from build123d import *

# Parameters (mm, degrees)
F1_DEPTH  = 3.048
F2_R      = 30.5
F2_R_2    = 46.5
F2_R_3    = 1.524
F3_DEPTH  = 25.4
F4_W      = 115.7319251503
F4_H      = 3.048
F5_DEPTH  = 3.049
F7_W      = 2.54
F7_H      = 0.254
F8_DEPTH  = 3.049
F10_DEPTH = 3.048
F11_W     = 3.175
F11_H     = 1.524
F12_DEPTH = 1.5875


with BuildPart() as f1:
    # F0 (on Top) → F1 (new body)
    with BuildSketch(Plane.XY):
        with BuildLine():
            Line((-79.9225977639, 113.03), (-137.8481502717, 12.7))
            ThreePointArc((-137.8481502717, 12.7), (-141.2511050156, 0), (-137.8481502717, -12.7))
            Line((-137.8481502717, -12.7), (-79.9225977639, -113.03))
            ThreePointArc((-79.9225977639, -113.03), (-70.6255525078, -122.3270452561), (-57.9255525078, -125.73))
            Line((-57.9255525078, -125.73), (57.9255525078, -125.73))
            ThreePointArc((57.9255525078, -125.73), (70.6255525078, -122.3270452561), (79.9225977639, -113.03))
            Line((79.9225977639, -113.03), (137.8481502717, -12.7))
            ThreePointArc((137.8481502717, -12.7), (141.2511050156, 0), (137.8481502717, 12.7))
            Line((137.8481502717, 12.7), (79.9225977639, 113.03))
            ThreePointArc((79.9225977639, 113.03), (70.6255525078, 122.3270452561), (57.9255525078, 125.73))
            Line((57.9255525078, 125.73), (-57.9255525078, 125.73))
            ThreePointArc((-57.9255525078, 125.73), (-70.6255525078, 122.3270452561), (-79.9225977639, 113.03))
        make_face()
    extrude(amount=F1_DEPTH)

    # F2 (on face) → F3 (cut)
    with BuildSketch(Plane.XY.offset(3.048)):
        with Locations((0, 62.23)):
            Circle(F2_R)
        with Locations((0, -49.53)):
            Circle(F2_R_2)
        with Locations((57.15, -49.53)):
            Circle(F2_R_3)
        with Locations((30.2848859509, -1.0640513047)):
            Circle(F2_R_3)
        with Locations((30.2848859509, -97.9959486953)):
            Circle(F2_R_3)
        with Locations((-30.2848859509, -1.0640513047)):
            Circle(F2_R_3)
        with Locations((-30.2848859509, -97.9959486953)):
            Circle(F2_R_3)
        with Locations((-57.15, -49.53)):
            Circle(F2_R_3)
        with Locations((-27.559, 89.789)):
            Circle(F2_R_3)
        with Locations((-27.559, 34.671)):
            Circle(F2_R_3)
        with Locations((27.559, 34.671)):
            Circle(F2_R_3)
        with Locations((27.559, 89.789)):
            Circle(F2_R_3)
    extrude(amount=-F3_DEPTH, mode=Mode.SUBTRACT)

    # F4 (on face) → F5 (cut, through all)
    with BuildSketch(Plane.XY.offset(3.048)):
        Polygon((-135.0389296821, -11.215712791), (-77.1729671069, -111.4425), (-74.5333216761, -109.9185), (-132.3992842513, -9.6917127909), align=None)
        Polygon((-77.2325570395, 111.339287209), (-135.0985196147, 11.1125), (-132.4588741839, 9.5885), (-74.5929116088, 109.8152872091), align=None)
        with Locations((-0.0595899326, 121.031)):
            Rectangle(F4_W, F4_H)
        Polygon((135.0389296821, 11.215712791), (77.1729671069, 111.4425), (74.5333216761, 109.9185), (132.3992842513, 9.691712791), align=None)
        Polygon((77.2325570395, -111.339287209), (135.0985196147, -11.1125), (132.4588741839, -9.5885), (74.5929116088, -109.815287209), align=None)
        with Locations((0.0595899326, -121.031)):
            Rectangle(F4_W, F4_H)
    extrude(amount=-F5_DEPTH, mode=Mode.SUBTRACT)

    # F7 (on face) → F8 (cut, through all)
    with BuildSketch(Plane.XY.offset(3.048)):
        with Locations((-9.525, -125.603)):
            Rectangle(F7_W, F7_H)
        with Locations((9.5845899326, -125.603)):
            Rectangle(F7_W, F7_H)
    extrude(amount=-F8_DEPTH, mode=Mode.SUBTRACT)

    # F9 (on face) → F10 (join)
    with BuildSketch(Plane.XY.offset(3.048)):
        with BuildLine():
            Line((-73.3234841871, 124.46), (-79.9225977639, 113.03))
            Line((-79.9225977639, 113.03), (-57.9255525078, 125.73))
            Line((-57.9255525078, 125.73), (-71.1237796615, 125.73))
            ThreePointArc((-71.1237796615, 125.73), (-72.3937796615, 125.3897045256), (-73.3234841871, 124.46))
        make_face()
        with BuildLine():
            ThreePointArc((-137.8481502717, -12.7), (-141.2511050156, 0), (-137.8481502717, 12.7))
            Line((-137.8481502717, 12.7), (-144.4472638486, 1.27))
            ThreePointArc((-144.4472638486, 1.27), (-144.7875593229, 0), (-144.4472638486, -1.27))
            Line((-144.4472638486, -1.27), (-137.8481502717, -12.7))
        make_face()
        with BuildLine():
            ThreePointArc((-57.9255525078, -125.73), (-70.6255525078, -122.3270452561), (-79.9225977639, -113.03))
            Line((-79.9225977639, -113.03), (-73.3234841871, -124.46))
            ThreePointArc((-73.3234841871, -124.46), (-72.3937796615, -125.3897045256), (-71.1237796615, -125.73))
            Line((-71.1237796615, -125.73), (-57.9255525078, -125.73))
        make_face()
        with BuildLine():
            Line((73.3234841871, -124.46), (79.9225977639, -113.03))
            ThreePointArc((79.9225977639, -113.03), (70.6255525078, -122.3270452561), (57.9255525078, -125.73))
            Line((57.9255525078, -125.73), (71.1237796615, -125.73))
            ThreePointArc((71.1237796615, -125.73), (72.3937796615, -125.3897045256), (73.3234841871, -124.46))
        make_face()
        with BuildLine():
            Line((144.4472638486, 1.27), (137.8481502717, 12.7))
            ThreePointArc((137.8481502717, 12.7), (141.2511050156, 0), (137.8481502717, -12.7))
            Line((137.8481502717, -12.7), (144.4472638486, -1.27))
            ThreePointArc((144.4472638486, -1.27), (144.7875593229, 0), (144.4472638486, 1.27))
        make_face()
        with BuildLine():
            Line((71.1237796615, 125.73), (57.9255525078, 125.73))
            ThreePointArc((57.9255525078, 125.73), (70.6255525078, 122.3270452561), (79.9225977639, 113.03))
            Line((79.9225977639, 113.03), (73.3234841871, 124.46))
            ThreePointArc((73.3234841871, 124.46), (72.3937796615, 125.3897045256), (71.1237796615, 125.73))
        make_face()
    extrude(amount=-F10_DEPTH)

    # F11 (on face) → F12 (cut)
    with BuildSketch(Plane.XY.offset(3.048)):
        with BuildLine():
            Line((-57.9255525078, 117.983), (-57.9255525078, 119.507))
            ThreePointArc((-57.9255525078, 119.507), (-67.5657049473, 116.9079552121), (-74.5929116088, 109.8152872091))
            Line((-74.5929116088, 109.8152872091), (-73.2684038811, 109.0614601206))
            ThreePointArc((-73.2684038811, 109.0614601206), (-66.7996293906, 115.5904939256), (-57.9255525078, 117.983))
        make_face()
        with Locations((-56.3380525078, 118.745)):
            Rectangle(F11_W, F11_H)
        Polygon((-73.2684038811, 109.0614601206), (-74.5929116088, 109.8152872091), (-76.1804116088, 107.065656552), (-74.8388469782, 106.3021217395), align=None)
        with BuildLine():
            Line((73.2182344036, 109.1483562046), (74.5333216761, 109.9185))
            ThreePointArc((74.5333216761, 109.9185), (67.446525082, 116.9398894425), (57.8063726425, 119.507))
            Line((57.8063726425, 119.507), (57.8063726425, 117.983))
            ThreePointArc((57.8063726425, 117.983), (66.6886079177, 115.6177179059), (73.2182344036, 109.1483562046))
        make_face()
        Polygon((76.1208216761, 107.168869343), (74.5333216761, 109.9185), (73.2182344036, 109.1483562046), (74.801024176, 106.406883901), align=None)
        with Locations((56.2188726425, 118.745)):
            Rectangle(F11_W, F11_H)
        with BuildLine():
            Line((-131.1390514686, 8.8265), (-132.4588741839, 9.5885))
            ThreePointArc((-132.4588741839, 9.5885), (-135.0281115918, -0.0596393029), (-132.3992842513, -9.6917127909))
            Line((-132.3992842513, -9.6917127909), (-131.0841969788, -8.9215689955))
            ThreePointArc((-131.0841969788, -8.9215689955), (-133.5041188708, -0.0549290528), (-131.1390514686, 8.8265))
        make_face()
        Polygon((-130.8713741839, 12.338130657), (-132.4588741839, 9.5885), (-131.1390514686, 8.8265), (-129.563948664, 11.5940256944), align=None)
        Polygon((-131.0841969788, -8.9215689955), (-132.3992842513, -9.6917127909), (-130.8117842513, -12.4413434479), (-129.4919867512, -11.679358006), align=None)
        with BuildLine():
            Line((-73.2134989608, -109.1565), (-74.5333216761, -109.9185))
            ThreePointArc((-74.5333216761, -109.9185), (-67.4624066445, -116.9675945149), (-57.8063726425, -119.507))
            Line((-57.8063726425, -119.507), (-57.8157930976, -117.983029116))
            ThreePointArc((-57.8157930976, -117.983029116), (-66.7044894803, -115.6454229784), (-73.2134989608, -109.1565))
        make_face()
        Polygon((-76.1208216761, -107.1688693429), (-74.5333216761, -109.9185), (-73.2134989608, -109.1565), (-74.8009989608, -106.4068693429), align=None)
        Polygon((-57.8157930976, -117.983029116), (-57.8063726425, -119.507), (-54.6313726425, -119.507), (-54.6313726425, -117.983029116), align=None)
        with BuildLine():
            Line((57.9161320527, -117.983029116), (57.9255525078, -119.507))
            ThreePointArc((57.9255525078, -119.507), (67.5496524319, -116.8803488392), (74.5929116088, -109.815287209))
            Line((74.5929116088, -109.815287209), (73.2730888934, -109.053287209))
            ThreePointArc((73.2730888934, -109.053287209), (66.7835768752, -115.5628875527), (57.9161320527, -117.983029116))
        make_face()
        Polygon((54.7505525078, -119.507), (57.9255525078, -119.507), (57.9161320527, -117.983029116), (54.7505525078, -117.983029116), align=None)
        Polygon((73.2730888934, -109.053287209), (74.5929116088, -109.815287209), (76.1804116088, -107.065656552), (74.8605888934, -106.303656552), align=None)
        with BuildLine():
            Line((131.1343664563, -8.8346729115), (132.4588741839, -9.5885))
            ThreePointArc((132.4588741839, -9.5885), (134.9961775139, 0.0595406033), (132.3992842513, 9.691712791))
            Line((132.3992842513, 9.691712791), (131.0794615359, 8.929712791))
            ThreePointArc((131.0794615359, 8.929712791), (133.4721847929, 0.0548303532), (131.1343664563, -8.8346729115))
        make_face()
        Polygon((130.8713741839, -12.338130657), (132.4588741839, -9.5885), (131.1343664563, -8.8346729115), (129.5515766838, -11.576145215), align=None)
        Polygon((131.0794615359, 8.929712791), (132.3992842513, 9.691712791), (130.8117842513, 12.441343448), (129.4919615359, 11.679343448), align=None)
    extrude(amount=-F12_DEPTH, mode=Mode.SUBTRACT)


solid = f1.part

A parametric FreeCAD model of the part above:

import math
import FreeCAD as App
import Part
import Sketcher
from FreeCAD import Vector
Q = App.Units.Quantity


def add_polygon(sketch, points):
    """Adds a closed chain of lines whose ends are joined by coincident constraints."""
    first, n = sketch.GeometryCount, len(points)
    for a, b in zip(points, points[1:] + points[:1]):
        sketch.addGeometry(Part.LineSegment(App.Vector(*a, 0), App.Vector(*b, 0)), False)
    for i in range(n):
        sketch.addConstraint(Sketcher.Constraint("Coincident", first + i, 2, first + (i + 1) % n, 1))

doc = App.newDocument("Part")
params = doc.addObject("Spreadsheet::Sheet", "Params")
for row, (alias, value) in enumerate([
    ("sketch1_radius", "1 in"),
    ("pad1_length", "0.12 in"),
    ("sketch2_diameter", "0.12 in"),
    ("pocket1_length", "1 in"),
    ("sketch3_height", "0.12 in"),
    ("sketch3_length", "0.12 in"),
    ("sketch4_width", "0.1 in"),
    ("sketch4_height", "0.01 in"),
    ("sketch5_radius", "1 in"),
    ("sketch5_radius2", "0.1 in"),
    ("pad2_length", "0.12 in"),
    ("sketch6_height", "0.06 in"),
    ("sketch6_width", "0.125 in"),
    ("sketch6_length", "0.125 in"),
    ("pocket4_length", "0.0625 in"),
], start=1):
    params.set(f"A{row}", alias)
    params.set(f"B{row}", "=" + value)
    params.setAlias(f"B{row}", alias)

body = doc.addObject("PartDesign::Body", "Body")

sketch1 = body.newObject("Sketcher::SketchObject", "Sketch")
sketch1.AttachmentSupport = (doc.getObject("XY_Plane"), [""])
sketch1.MapMode = "FlatFace"
sketch1.addGeometry(Part.LineSegment(Vector(-80, 113, 0), Vector(-138, 13, 0)), False)
sketch1.addGeometry(Part.ArcOfCircle(Part.Circle(Vector(-116, 0, 0), Vector(0, 0, 1), 25), math.radians(150), math.radians(210)), False)
sketch1.addGeometry(Part.LineSegment(Vector(-138, -13, 0), Vector(-80, -113, 0)), False)
sketch1.addGeometry(Part.ArcOfCircle(Part.Circle(Vector(-58, -100, 0), Vector(0, 0, 1), 25), math.radians(-150), math.radians(-90)), False)
sketch1.addGeometry(Part.LineSegment(Vector(-58, -126, 0), Vector(58, -126, 0)), False)
sketch1.addGeometry(Part.ArcOfCircle(Part.Circle(Vector(58, -100, 0), Vector(0, 0, 1), 25), math.radians(-90), math.radians(-30)), False)
sketch1.addGeometry(Part.LineSegment(Vector(80, -113, 0), Vector(138, -13, 0)), False)
sketch1.addGeometry(Part.ArcOfCircle(Part.Circle(Vector(116, 0, 0), Vector(0, 0, 1), 25), math.radians(-30), math.radians(30)), False)
sketch1.addGeometry(Part.LineSegment(Vector(138, 13, 0), Vector(80, 113, 0)), False)
sketch1.addGeometry(Part.ArcOfCircle(Part.Circle(Vector(58, 100, 0), Vector(0, 0, 1), 25), math.radians(30), math.radians(90)), False)
sketch1.addGeometry(Part.LineSegment(Vector(58, 126, 0), Vector(-58, 126, 0)), False)
sketch1.addGeometry(Part.ArcOfCircle(Part.Circle(Vector(-58, 100, 0), Vector(0, 0, 1), 25), math.radians(90), math.radians(150)), False)
sketch1.addConstraint(Sketcher.Constraint("Tangent", 0, 2, 1, 1))
sketch1.addConstraint(Sketcher.Constraint("Tangent", 1, 2, 2, 1))
sketch1.addConstraint(Sketcher.Constraint("Tangent", 2, 2, 3, 1))
sketch1.addConstraint(Sketcher.Constraint("Tangent", 3, 2, 4, 1))
sketch1.addConstraint(Sketcher.Constraint("Tangent", 4, 2, 5, 1))
sketch1.addConstraint(Sketcher.Constraint("Tangent", 5, 2, 6, 1))
sketch1.addConstraint(Sketcher.Constraint("Tangent", 6, 2, 7, 1))
sketch1.addConstraint(Sketcher.Constraint("Tangent", 7, 2, 8, 1))
sketch1.addConstraint(Sketcher.Constraint("Tangent", 8, 2, 9, 1))
sketch1.addConstraint(Sketcher.Constraint("Tangent", 9, 2, 10, 1))
sketch1.addConstraint(Sketcher.Constraint("Tangent", 10, 2, 11, 1))
sketch1.addConstraint(Sketcher.Constraint("Tangent", 11, 2, 0, 1))
sketch1.addConstraint(Sketcher.Constraint("Horizontal", 4))
sketch1.addConstraint(Sketcher.Constraint("Horizontal", 10))
sketch1.addConstraint(Sketcher.Constraint("Equal", 1, 3))
sketch1.addConstraint(Sketcher.Constraint("Equal", 3, 5))
sketch1.addConstraint(Sketcher.Constraint("Equal", 5, 7))
sketch1.addConstraint(Sketcher.Constraint("Equal", 7, 9))
sketch1.addConstraint(Sketcher.Constraint("Equal", 9, 11))
sketch1.addConstraint(Sketcher.Constraint("Symmetric", 1, 3, 7, 3, -1, 1))
sketch1.addConstraint(Sketcher.Constraint("Symmetric", 3, 3, 9, 3, -1, 1))
sketch1.addConstraint(Sketcher.Constraint("Symmetric", 2, 2, 5, 2, -2))
sketch1.addConstraint(Sketcher.Constraint("Parallel", 0, 6))
sketch1.addConstraint(Sketcher.Constraint("Radius", 1, Q("1 in")))
sketch1.addConstraint(Sketcher.Constraint("Angle", 0, Q("-120 deg")))
sketch1.addConstraint(Sketcher.Constraint("DistanceY", 5, 3, 9, 3, Q("7.9 in")))
sketch1.addConstraint(Sketcher.Constraint("DistanceX", 4, 1, 4, 2, Q("115.851105 mm")))
sketch1.setExpression("Constraints[23]", "Params.sketch1_radius")
pad1 = body.newObject("PartDesign::Pad", "Pad")
pad1.Profile = sketch1
pad1.setExpression("Length", "Params.pad1_length")

sketch2 = body.newObject("Sketcher::SketchObject", "Sketch001")
sketch2.AttachmentSupport = (doc.getObject("XY_Plane"), [""])
sketch2.MapMode = "FlatFace"
sketch2.AttachmentOffset = App.Placement(Vector(0, 0, 0.12 * 25.4), App.Rotation())
sketch2.addGeometry(Part.Circle(Vector(0, 62.2, 0), Vector(0, 0, 1), 30.5), False)
sketch2.addGeometry(Part.Circle(Vector(0, -49.5, 0), Vector(0, 0, 1), 46.5), False)
sketch2.addGeometry(Part.Circle(Vector(57.1, -49.5, 0), Vector(0, 0, 1), 1.5), False)
sketch2.addGeometry(Part.Circle(Vector(30.3, -1.1, 0), Vector(0, 0, 1), 1.5), False)
sketch2.addGeometry(Part.Circle(Vector(30.3, -98, 0), Vector(0, 0, 1), 1.5), False)
sketch2.addGeometry(Part.Circle(Vector(-30.3, -1.1, 0), Vector(0, 0, 1), 1.5), False)
sketch2.addGeometry(Part.Circle(Vector(-30.3, -98, 0), Vector(0, 0, 1), 1.5), False)
sketch2.addGeometry(Part.Circle(Vector(-57.1, -49.5, 0), Vector(0, 0, 1), 1.5), False)
sketch2.addGeometry(Part.Circle(Vector(-27.6, 89.8, 0), Vector(0, 0, 1), 1.5), False)
sketch2.addGeometry(Part.Circle(Vector(-27.6, 34.7, 0), Vector(0, 0, 1), 1.5), False)
sketch2.addGeometry(Part.Circle(Vector(27.6, 34.7, 0), Vector(0, 0, 1), 1.5), False)
sketch2.addGeometry(Part.Circle(Vector(27.6, 89.8, 0), Vector(0, 0, 1), 1.5), False)
sketch2.addConstraint(Sketcher.Constraint("Equal", 2, 3))
sketch2.addConstraint(Sketcher.Constraint("Equal", 3, 4))
sketch2.addConstraint(Sketcher.Constraint("Equal", 4, 5))
sketch2.addConstraint(Sketcher.Constraint("Equal", 5, 6))
sketch2.addConstraint(Sketcher.Constraint("Equal", 6, 7))
sketch2.addConstraint(Sketcher.Constraint("Equal", 7, 8))
sketch2.addConstraint(Sketcher.Constraint("Equal", 8, 9))
sketch2.addConstraint(Sketcher.Constraint("Equal", 9, 10))
sketch2.addConstraint(Sketcher.Constraint("Equal", 10, 11))
sketch2.addConstraint(Sketcher.Constraint("Symmetric", 3, 3, 5, 3, -2))
sketch2.addConstraint(Sketcher.Constraint("Symmetric", 4, 3, 6, 3, -2))
sketch2.addConstraint(Sketcher.Constraint("Symmetric", 2, 3, 7, 3, -2))
sketch2.addConstraint(Sketcher.Constraint("Symmetric", 9, 3, 10, 3, -2))
sketch2.addConstraint(Sketcher.Constraint("Symmetric", 8, 3, 11, 3, -2))
sketch2.addConstraint(Sketcher.Constraint("PointOnObject", 0, 3, -2))
sketch2.addConstraint(Sketcher.Constraint("PointOnObject", 1, 3, -2))
sketch2.addConstraint(Sketcher.Constraint("Horizontal", 1, 3, 2, 3))
sketch2.addConstraint(Sketcher.Constraint("Vertical", 3, 3, 4, 3))
sketch2.addConstraint(Sketcher.Constraint("Vertical", 8, 3, 9, 3))
sketch2.addConstraint(Sketcher.Constraint("Diameter", 2, Q("0.12 in")))
sketch2.addConstraint(Sketcher.Constraint("DistanceY", 1, 3, 0, 3, Q("4.4 in")))
sketch2.addConstraint(Sketcher.Constraint("Diameter", 0, Q("61 mm")))
sketch2.addConstraint(Sketcher.Constraint("Diameter", 1, Q("93 mm")))
sketch2.addConstraint(Sketcher.Constraint("DistanceY", -1, 1, 0, 3, Q("2.45 in")))
sketch2.addConstraint(Sketcher.Constraint("DistanceX", -1, 1, 2, 3, Q("2.25 in")))
sketch2.addConstraint(Sketcher.Constraint("DistanceY", 9, 3, 8, 3, Q("2.17 in")))
sketch2.addConstraint(Sketcher.Constraint("DistanceX", 9, 3, 10, 3, Q("2.17 in")))
sketch2.addConstraint(Sketcher.Constraint("DistanceY", -1, 1, 8, 3, Q("3.535 in")))
sketch2.addConstraint(Sketcher.Constraint("DistanceY", 3, 3, -1, 1, Q("1.064051 mm")))
sketch2.addConstraint(Sketcher.Constraint("DistanceY", 4, 3, -1, 1, Q("97.995949 mm")))
sketch2.addConstraint(Sketcher.Constraint("DistanceX", 5, 3, 3, 3, Q("60.569772 mm")))
sketch2.setExpression("Constraints[19]", "Params.sketch2_diameter")
pocket1 = body.newObject("PartDesign::Pocket", "Pocket")
pocket1.Profile = sketch2
pocket1.setExpression("Length", "Params.pocket1_length")

sketch3 = body.newObject("Sketcher::SketchObject", "Sketch002")
sketch3.AttachmentSupport = (doc.getObject("XY_Plane"), [""])
sketch3.MapMode = "FlatFace"
sketch3.AttachmentOffset = App.Placement(Vector(0, 0, 0.12 * 25.4), App.Rotation())
add_polygon(sketch3, [(-135, -11.2), (-77.2, -111.4), (-74.5, -109.9), (-132.4, -9.7)])
add_polygon(sketch3, [(-77.2, 111.3), (-135.1, 11.1), (-132.5, 9.6), (-74.6, 109.8)])
add_polygon(sketch3, [(-57.9, 122.6), (-57.9, 119.5), (57.8, 119.5), (57.8, 122.6)])
add_polygon(sketch3, [(135, 11.2), (77.2, 111.4), (74.5, 109.9), (132.4, 9.7)])
add_polygon(sketch3, [(77.2, -111.3), (135.1, -11.1), (132.5, -9.6), (74.6, -109.8)])
add_polygon(sketch3, [(-57.8, -119.5), (-57.8, -122.6), (57.9, -122.6), (57.9, -119.5)])
sketch3.addConstraint(Sketcher.Constraint("Vertical", 8))
sketch3.addConstraint(Sketcher.Constraint("Horizontal", 9))
sketch3.addConstraint(Sketcher.Constraint("Vertical", 10))
sketch3.addConstraint(Sketcher.Constraint("Horizontal", 11))
sketch3.addConstraint(Sketcher.Constraint("Vertical", 20))
sketch3.addConstraint(Sketcher.Constraint("Horizontal", 21))
sketch3.addConstraint(Sketcher.Constraint("Vertical", 22))
sketch3.addConstraint(Sketcher.Constraint("Horizontal", 23))
sketch3.addConstraint(Sketcher.Constraint("Symmetric", 0, 2, 12, 2, -1, 1))
sketch3.addConstraint(Sketcher.Constraint("Symmetric", 1, 2, 13, 2, -1, 1))
sketch3.addConstraint(Sketcher.Constraint("Symmetric", 2, 2, 14, 2, -1, 1))
sketch3.addConstraint(Sketcher.Constraint("Symmetric", 3, 2, 15, 2, -1, 1))
sketch3.addConstraint(Sketcher.Constraint("Symmetric", 4, 2, 16, 2, -1, 1))
sketch3.addConstraint(Sketcher.Constraint("Symmetric", 5, 2, 17, 2, -1, 1))
sketch3.addConstraint(Sketcher.Constraint("Symmetric", 6, 2, 18, 2, -1, 1))
sketch3.addConstraint(Sketcher.Constraint("Symmetric", 7, 2, 19, 2, -1, 1))
sketch3.addConstraint(Sketcher.Constraint("Symmetric", 10, 2, 20, 2, -1, 1))
sketch3.addConstraint(Sketcher.Constraint("Symmetric", 8, 2, 22, 2, -1, 1))
sketch3.addConstraint(Sketcher.Constraint("Perpendicular", 0, 1))
sketch3.addConstraint(Sketcher.Constraint("Perpendicular", 1, 2))
sketch3.addConstraint(Sketcher.Constraint("Perpendicular", 2, 3))
sketch3.addConstraint(Sketcher.Constraint("Perpendicular", 4, 5))
sketch3.addConstraint(Sketcher.Constraint("Perpendicular", 5, 6))
sketch3.addConstraint(Sketcher.Constraint("Perpendicular", 6, 7))
sketch3.addConstraint(Sketcher.Constraint("Equal", 2, 4))
sketch3.addConstraint(Sketcher.Constraint("Equal", 3, 5))
sketch3.addConstraint(Sketcher.Constraint("Angle", 0, Q("-60 deg")))
sketch3.addConstraint(Sketcher.Constraint("Angle", 4, Q("-120 deg")))
sketch3.addConstraint(Sketcher.Constraint("DistanceY", 8, 2, 8, 1, Q("0.12 in")))
sketch3.addConstraint(Sketcher.Constraint("Distance", 1, Q("0.12 in")))
sketch3.addConstraint(Sketcher.Constraint("DistanceY", -1, 1, 4, 2, Q("0.4375 in")))
sketch3.addConstraint(Sketcher.Constraint("DistanceY", -1, 1, 8, 2, Q("4.705 in")))
sketch3.addConstraint(Sketcher.Constraint("DistanceY", 1, 2, 4, 2, Q("4.765 in")))
sketch3.addConstraint(Sketcher.Constraint("DistanceX", 9, 1, 9, 2, Q("115.731925 mm")))
sketch3.addConstraint(Sketcher.Constraint("DistanceX", 1, 2, -1, 1, Q("74.533322 mm")))
sketch3.addConstraint(Sketcher.Constraint("DistanceX", 3, 2, -1, 1, Q("135.03893 mm")))
sketch3.addConstraint(Sketcher.Constraint("DistanceX", 4, 2, -1, 1, Q("135.09852 mm")))
sketch3.addConstraint(Sketcher.Constraint("DistanceX", 6, 2, 8, 2, Q("16.667359 mm")))
sketch3.setExpression("Constraints[52]", "Params.sketch3_height")
sketch3.setExpression("Constraints[53]", "Params.sketch3_length")
pocket2 = body.newObject("PartDesign::Pocket", "Pocket001")
pocket2.Profile = sketch3
pocket2.Type = "ThroughAll"

sketch4 = body.newObject("Sketcher::SketchObject", "Sketch003")
sketch4.AttachmentSupport = (doc.getObject("XY_Plane"), [""])
sketch4.MapMode = "FlatFace"
sketch4.AttachmentOffset = App.Placement(Vector(0, 0, 0.12 * 25.4), App.Rotation())
add_polygon(sketch4, [(-10.79, -125.48), (-10.79, -125.73), (-8.26, -125.73), (-8.26, -125.48)])
add_polygon(sketch4, [(8.31, -125.48), (8.31, -125.73), (10.85, -125.73), (10.85, -125.48)])
sketch4.addConstraint(Sketcher.Constraint("Vertical", 0))
sketch4.addConstraint(Sketcher.Constraint("Horizontal", 1))
sketch4.addConstraint(Sketcher.Constraint("Vertical", 2))
sketch4.addConstraint(Sketcher.Constraint("Horizontal", 3))
sketch4.addConstraint(Sketcher.Constraint("Vertical", 4))
sketch4.addConstraint(Sketcher.Constraint("Horizontal", 5))
sketch4.addConstraint(Sketcher.Constraint("Vertical", 6))
sketch4.addConstraint(Sketcher.Constraint("Horizontal", 7))
sketch4.addConstraint(Sketcher.Constraint("Horizontal", 1, 2, 4, 2))
sketch4.addConstraint(Sketcher.Constraint("Horizontal", 3, 2, 6, 2))
sketch4.addConstraint(Sketcher.Constraint("Equal", 3, 5))
sketch4.addConstraint(Sketcher.Constraint("DistanceX", 1, 1, 1, 2, Q("0.1 in")))
sketch4.addConstraint(Sketcher.Constraint("DistanceY", 0, 2, 0, 1, Q("0.01 in")))
sketch4.addConstraint(Sketcher.Constraint("DistanceY", 0, 2, -1, 1, Q("4.95 in")))
sketch4.addConstraint(Sketcher.Constraint("DistanceX", 0, 2, -1, 1, Q("0.425 in")))
sketch4.addConstraint(Sketcher.Constraint("DistanceX", -1, 1, 4, 2, Q("8.31459 mm")))
sketch4.setExpression("Constraints[19]", "Params.sketch4_width")
sketch4.setExpression("Constraints[20]", "Params.sketch4_height")
pocket3 = body.newObject("PartDesign::Pocket", "Pocket002")
pocket3.Profile = sketch4
pocket3.Type = "ThroughAll"

sketch5 = body.newObject("Sketcher::SketchObject", "Sketch004")
sketch5.AttachmentSupport = (doc.getObject("XY_Plane"), [""])
sketch5.MapMode = "FlatFace"
sketch5.AttachmentOffset = App.Placement(Vector(0, 0, 0.12 * 25.4), App.Rotation())
sketch5.addGeometry(Part.LineSegment(Vector(-73.3, 124.5, 0), Vector(-79.9, 113, 0)), False)
sketch5.addGeometry(Part.LineSegment(Vector(-79.9, 113, 0), Vector(-57.9, 125.7, 0)), False)
sketch5.addGeometry(Part.LineSegment(Vector(-57.9, 125.7, 0), Vector(-71.1, 125.7, 0)), False)
sketch5.addGeometry(Part.ArcOfCircle(Part.Circle(Vector(-71.1, 123.2, 0), Vector(0, 0, 1), 2.5), math.radians(90), math.radians(150)), False)
sketch5.addGeometry(Part.ArcOfCircle(Part.Circle(Vector(-115.9, 0, 0), Vector(0, 0, 1), 25.4), math.radians(150), math.radians(210)), False)
sketch5.addGeometry(Part.LineSegment(Vector(-137.8, 12.7, 0), Vector(-144.4, 1.3, 0)), False)
sketch5.addGeometry(Part.ArcOfCircle(Part.Circle(Vector(-142.2, 0, 0), Vector(0, 0, 1), 2.5), math.radians(150), math.radians(210)), False)
sketch5.addGeometry(Part.LineSegment(Vector(-144.4, -1.3, 0), Vector(-137.8, -12.7, 0)), False)
sketch5.addGeometry(Part.ArcOfCircle(Part.Circle(Vector(-57.9, -100.3, 0), Vector(0, 0, 1), 25.4), math.radians(-150), math.radians(-90)), False)
sketch5.addGeometry(Part.LineSegment(Vector(-79.9, -113, 0), Vector(-73.3, -124.5, 0)), False)
sketch5.addGeometry(Part.ArcOfCircle(Part.Circle(Vector(-71.1, -123.2, 0), Vector(0, 0, 1), 2.5), math.radians(-150), math.radians(-90)), False)
sketch5.addGeometry(Part.LineSegment(Vector(-71.1, -125.7, 0), Vector(-57.9, -125.7, 0)), False)
sketch5.addGeometry(Part.LineSegment(Vector(73.3, -124.5, 0), Vector(79.9, -113, 0)), False)
sketch5.addGeometry(Part.ArcOfCircle(Part.Circle(Vector(57.9, -100.3, 0), Vector(0, 0, 1), 25.4), math.radians(-90), math.radians(-30)), False)
sketch5.addGeometry(Part.LineSegment(Vector(57.9, -125.7, 0), Vector(71.1, -125.7, 0)), False)
sketch5.addGeometry(Part.ArcOfCircle(Part.Circle(Vector(71.1, -123.2, 0), Vector(0, 0, 1), 2.5), math.radians(-90), math.radians(-30)), False)
sketch5.addGeometry(Part.LineSegment(Vector(144.4, 1.3, 0), Vector(137.8, 12.7, 0)), False)
sketch5.addGeometry(Part.ArcOfCircle(Part.Circle(Vector(115.9, 0, 0), Vector(0, 0, 1), 25.4), math.radians(-30), math.radians(30)), False)
sketch5.addGeometry(Part.LineSegment(Vector(137.8, -12.7, 0), Vector(144.4, -1.3, 0)), False)
sketch5.addGeometry(Part.ArcOfCircle(Part.Circle(Vector(142.2, 0, 0), Vector(0, 0, 1), 2.5), math.radians(-30), math.radians(30)), False)
sketch5.addGeometry(Part.LineSegment(Vector(71.1, 125.7, 0), Vector(57.9, 125.7, 0)), False)
sketch5.addGeometry(Part.ArcOfCircle(Part.Circle(Vector(57.9, 100.3, 0), Vector(0, 0, 1), 25.4), math.radians(30), math.radians(90)), False)
sketch5.addGeometry(Part.LineSegment(Vector(79.9, 113, 0), Vector(73.3, 124.5, 0)), False)
sketch5.addGeometry(Part.ArcOfCircle(Part.Circle(Vector(71.1, 123.2, 0), Vector(0, 0, 1), 2.5), math.radians(30), math.radians(90)), False)
sketch5.addConstraint(Sketcher.Constraint("Coincident", 0, 2, 1, 1))
sketch5.addConstraint(Sketcher.Constraint("Coincident", 1, 2, 2, 1))
sketch5.addConstraint(Sketcher.Constraint("Tangent", 2, 2, 3, 1))
sketch5.addConstraint(Sketcher.Constraint("Tangent", 3, 2, 0, 1))
sketch5.addConstraint(Sketcher.Constraint("Tangent", 4, 1, 5, 1))
sketch5.addConstraint(Sketcher.Constraint("Tangent", 5, 2, 6, 1))
sketch5.addConstraint(Sketcher.Constraint("Tangent", 6, 2, 7, 1))
sketch5.addConstraint(Sketcher.Constraint("Tangent", 7, 2, 4, 2))
sketch5.addConstraint(Sketcher.Constraint("Tangent", 8, 1, 9, 1))
sketch5.addConstraint(Sketcher.Constraint("Tangent", 9, 2, 10, 1))
sketch5.addConstraint(Sketcher.Constraint("Tangent", 10, 2, 11, 1))
sketch5.addConstraint(Sketcher.Constraint("Tangent", 11, 2, 8, 2))
sketch5.addConstraint(Sketcher.Constraint("Tangent", 12, 2, 13, 2))
sketch5.addConstraint(Sketcher.Constraint("Tangent", 13, 1, 14, 1))
sketch5.addConstraint(Sketcher.Constraint("Tangent", 14, 2, 15, 1))
sketch5.addConstraint(Sketcher.Constraint("Tangent", 15, 2, 12, 1))
sketch5.addConstraint(Sketcher.Constraint("Tangent", 16, 2, 17, 2))
sketch5.addConstraint(Sketcher.Constraint("Tangent", 17, 1, 18, 1))
sketch5.addConstraint(Sketcher.Constraint("Tangent", 18, 2, 19, 1))
sketch5.addConstraint(Sketcher.Constraint("Tangent", 19, 2, 16, 1))
sketch5.addConstraint(Sketcher.Constraint("Tangent", 20, 2, 21, 2))
sketch5.addConstraint(Sketcher.Constraint("Tangent", 21, 1, 22, 1))
sketch5.addConstraint(Sketcher.Constraint("Tangent", 22, 2, 23, 1))
sketch5.addConstraint(Sketcher.Constraint("Tangent", 23, 2, 20, 1))
sketch5.addConstraint(Sketcher.Constraint("Horizontal", 2))
sketch5.addConstraint(Sketcher.Constraint("Horizontal", 11))
sketch5.addConstraint(Sketcher.Constraint("Horizontal", 14))
sketch5.addConstraint(Sketcher.Constraint("Horizontal", 20))
sketch5.addConstraint(Sketcher.Constraint("Equal", 3, 6))
sketch5.addConstraint(Sketcher.Constraint("Equal", 4, 8))
sketch5.addConstraint(Sketcher.Constraint("Equal", 6, 10))
sketch5.addConstraint(Sketcher.Constraint("Equal", 8, 13))
sketch5.addConstraint(Sketcher.Constraint("Equal", 10, 15))
sketch5.addConstraint(Sketcher.Constraint("Equal", 13, 17))
sketch5.addConstraint(Sketcher.Constraint("Equal", 15, 19))
sketch5.addConstraint(Sketcher.Constraint("Equal", 17, 21))
sketch5.addConstraint(Sketcher.Constraint("Equal", 19, 23))
sketch5.addConstraint(Sketcher.Constraint("Symmetric", 3, 3, 15, 3, -1, 1))
sketch5.addConstraint(Sketcher.Constraint("Symmetric", 4, 3, 17, 3, -1, 1))
sketch5.addConstraint(Sketcher.Constraint("Symmetric", 6, 3, 19, 3, -1, 1))
sketch5.addConstraint(Sketcher.Constraint("Symmetric", 8, 3, 21, 3, -1, 1))
sketch5.addConstraint(Sketcher.Constraint("Symmetric", 0, 2, 12, 2, -1, 1))
sketch5.addConstraint(Sketcher.Constraint("Symmetric", 8, 3, 13, 3, -2))
sketch5.addConstraint(Sketcher.Constraint("Symmetric", 4, 1, 16, 2, -2))
sketch5.addConstraint(Sketcher.Constraint("Parallel", 0, 5))
sketch5.addConstraint(Sketcher.Constraint("Perpendicular", 1, 7))
sketch5.addConstraint(Sketcher.Constraint("Parallel", 7, 9))
sketch5.addConstraint(Sketcher.Constraint("Parallel", 16, 22))
sketch5.addConstraint(Sketcher.Constraint("Vertical", 8, 3, 1, 2))
sketch5.addConstraint(Sketcher.Constraint("Radius", 4, Q("1 in")))
sketch5.addConstraint(Sketcher.Constraint("Radius", 3, Q("0.1 in")))
sketch5.addConstraint(Sketcher.Constraint("DistanceY", 8, 3, 5, 2, Q("4 in")))
sketch5.addConstraint(Sketcher.Constraint("DistanceX", 5, 2, -1, 1, Q("5.6869002 in")))
sketch5.addConstraint(Sketcher.Constraint("DistanceX", 3, 3, -1, 1, Q("71.12378 mm")))
sketch5.setExpression("Constraints[49]", "Params.sketch5_radius")
sketch5.setExpression("Constraints[50]", "Params.sketch5_radius2")
pad2 = body.newObject("PartDesign::Pad", "Pad001")
pad2.Profile = sketch5
pad2.setExpression("Length", "Params.pad2_length")
pad2.Reversed = True

sketch6 = body.newObject("Sketcher::SketchObject", "Sketch005")
sketch6.AttachmentSupport = (doc.getObject("XY_Plane"), [""])
sketch6.MapMode = "FlatFace"
sketch6.AttachmentOffset = App.Placement(Vector(0, 0, 0.12 * 25.4), App.Rotation())
sketch6.addGeometry(Part.ArcOfCircle(Part.Circle(Vector(-57.925553, 100.329267, 0), Vector(0, 0, 1), 19.177733), math.radians(90), math.radians(150.35417)), False)
sketch6.addGeometry(Part.LineSegment(Vector(-74.592912, 109.815287, 0), Vector(-76.180412, 107.065657, 0)), False)
sketch6.addGeometry(Part.LineSegment(Vector(-76.180412, 107.065657, 0), Vector(-74.838847, 106.302122, 0)), False)
sketch6.addGeometry(Part.LineSegment(Vector(-74.838847, 106.302122, 0), Vector(-73.268404, 109.06146, 0)), False)
sketch6.addGeometry(Part.ArcOfCircle(Part.Circle(Vector(-57.925553, 100.329267, 0), Vector(0, 0, 1), 17.653733), math.radians(90), math.radians(150.35417)), False)
sketch6.addGeometry(Part.LineSegment(Vector(-57.925553, 117.983, 0), Vector(-54.750553, 117.983, 0)), False)
sketch6.addGeometry(Part.LineSegment(Vector(-54.750553, 117.983, 0), Vector(-54.750553, 119.507, 0)), False)
sketch6.addGeometry(Part.LineSegment(Vector(-54.750553, 119.507, 0), Vector(-57.925553, 119.507, 0)), False)
sketch6.addGeometry(Part.ArcOfCircle(Part.Circle(Vector(57.806373, 100.122834, 0), Vector(0, 0, 1), 19.384166), math.radians(30.35417), math.radians(90)), False)
sketch6.addGeometry(Part.LineSegment(Vector(57.806373, 119.507, 0), Vector(54.631373, 119.507, 0)), False)
sketch6.addGeometry(Part.LineSegment(Vector(54.631373, 119.507, 0), Vector(54.631373, 117.983, 0)), False)
sketch6.addGeometry(Part.LineSegment(Vector(54.631373, 117.983, 0), Vector(57.806373, 117.983, 0)), False)
sketch6.addGeometry(Part.ArcOfCircle(Part.Circle(Vector(57.806373, 100.122834, 0), Vector(0, 0, 1), 17.860166), math.radians(30.35417), math.radians(90)), False)
sketch6.addGeometry(Part.LineSegment(Vector(73.218234, 109.148356, 0), Vector(74.801024, 106.406884, 0)), False)
sketch6.addGeometry(Part.LineSegment(Vector(74.801024, 106.406884, 0), Vector(76.120822, 107.168869, 0)), False)
sketch6.addGeometry(Part.LineSegment(Vector(76.120822, 107.168869, 0), Vector(74.533322, 109.9185, 0)), False)
sketch6.addGeometry(Part.ArcOfCircle(Part.Circle(Vector(-115.85047, -0.000366, 0), Vector(0, 0, 1), 19.177733), math.radians(150), math.radians(210.35417)), False)
sketch6.addGeometry(Part.LineSegment(Vector(-132.399284, -9.691713, 0), Vector(-130.811784, -12.441343, 0)), False)
sketch6.addGeometry(Part.LineSegment(Vector(-130.811784, -12.441343, 0), Vector(-129.491987, -11.679358, 0)), False)
sketch6.addGeometry(Part.LineSegment(Vector(-129.491987, -11.679358, 0), Vector(-131.084197, -8.921569, 0)), False)
sketch6.addGeometry(Part.ArcOfCircle(Part.Circle(Vector(-115.85047, -0.000366, 0), Vector(0, 0, 1), 17.653733), math.radians(150), math.radians(210.35417)), False)
sketch6.addGeometry(Part.LineSegment(Vector(-131.139051, 8.8265, 0), Vector(-129.563949, 11.594026, 0)), False)
sketch6.addGeometry(Part.LineSegment(Vector(-129.563949, 11.594026, 0), Vector(-130.871374, 12.338131, 0)), False)
sketch6.addGeometry(Part.LineSegment(Vector(-130.871374, 12.338131, 0), Vector(-132.458874, 9.5885, 0)), False)
sketch6.addGeometry(Part.ArcOfCircle(Part.Circle(Vector(-57.924918, -100.329634, 0), Vector(0, 0, 1), 19.177733), math.radians(-150), math.radians(-89.64583)), False)
sketch6.addGeometry(Part.LineSegment(Vector(-57.806373, -119.507, 0), Vector(-54.631373, -119.507, 0)), False)
sketch6.addGeometry(Part.LineSegment(Vector(-54.631373, -119.507, 0), Vector(-54.631373, -117.983029, 0)), False)
sketch6.addGeometry(Part.LineSegment(Vector(-54.631373, -117.983029, 0), Vector(-57.815793, -117.983029, 0)), False)
sketch6.addGeometry(Part.ArcOfCircle(Part.Circle(Vector(-57.924918, -100.329634, 0), Vector(0, 0, 1), 17.653733), math.radians(-150), math.radians(-89.64583)), False)
sketch6.addGeometry(Part.LineSegment(Vector(-73.213499, -109.1565, 0), Vector(-74.800999, -106.406869, 0)), False)
sketch6.addGeometry(Part.LineSegment(Vector(-74.800999, -106.406869, 0), Vector(-76.120822, -107.168869, 0)), False)
sketch6.addGeometry(Part.LineSegment(Vector(-76.120822, -107.168869, 0), Vector(-74.533322, -109.9185, 0)), False)
sketch6.addGeometry(Part.ArcOfCircle(Part.Circle(Vector(57.805731, -100.123204, 0), Vector(0, 0, 1), 19.384166), math.radians(-89.64583), math.radians(-30)), False)
sketch6.addGeometry(Part.LineSegment(Vector(74.592912, -109.815287, 0), Vector(76.180412, -107.065657, 0)), False)
sketch6.addGeometry(Part.LineSegment(Vector(76.180412, -107.065657, 0), Vector(74.860589, -106.303657, 0)), False)
sketch6.addGeometry(Part.LineSegment(Vector(74.860589, -106.303657, 0), Vector(73.273089, -109.053287, 0)), False)
sketch6.addGeometry(Part.ArcOfCircle(Part.Circle(Vector(57.805731, -100.123204, 0), Vector(0, 0, 1), 17.860166), math.radians(-89.64583), math.radians(-30)), False)
sketch6.addGeometry(Part.LineSegment(Vector(57.916132, -117.983029, 0), Vector(54.750553, -117.983029, 0)), False)
sketch6.addGeometry(Part.LineSegment(Vector(54.750553, -117.983029, 0), Vector(54.750553, -119.507, 0)), False)
sketch6.addGeometry(Part.LineSegment(Vector(54.750553, -119.507, 0), Vector(57.925553, -119.507, 0)), False)
sketch6.addGeometry(Part.ArcOfCircle(Part.Circle(Vector(115.612104, -0.00037, 0), Vector(0, 0, 1), 19.384166), math.radians(-29.64583), math.radians(30)), False)
sketch6.addGeometry(Part.LineSegment(Vector(132.399284, 9.691713, 0), Vector(130.811784, 12.441343, 0)), False)
sketch6.addGeometry(Part.LineSegment(Vector(130.811784, 12.441343, 0), Vector(129.491962, 11.679343, 0)), False)
sketch6.addGeometry(Part.LineSegment(Vector(129.491962, 11.679343, 0), Vector(131.079462, 8.929713, 0)), False)
sketch6.addGeometry(Part.ArcOfCircle(Part.Circle(Vector(115.612104, -0.00037, 0), Vector(0, 0, 1), 17.860166), math.radians(-29.64583), math.radians(30)), False)
sketch6.addGeometry(Part.LineSegment(Vector(131.134366, -8.834673, 0), Vector(129.551577, -11.576145, 0)), False)
sketch6.addGeometry(Part.LineSegment(Vector(129.551577, -11.576145, 0), Vector(130.871374, -12.338131, 0)), False)
sketch6.addGeometry(Part.LineSegment(Vector(130.871374, -12.338131, 0), Vector(132.458874, -9.5885, 0)), False)
sketch6.addConstraint(Sketcher.Constraint("Coincident", 0, 2, 1, 1))
sketch6.addConstraint(Sketcher.Constraint("Coincident", 1, 2, 2, 1))
sketch6.addConstraint(Sketcher.Constraint("Coincident", 2, 2, 3, 1))
sketch6.addConstraint(Sketcher.Constraint("Tangent", 3, 2, 4, 2))
sketch6.addConstraint(Sketcher.Constraint("Tangent", 4, 1, 5, 1))
sketch6.addConstraint(Sketcher.Constraint("Coincident", 5, 2, 6, 1))
sketch6.addConstraint(Sketcher.Constraint("Coincident", 6, 2, 7, 1))
sketch6.addConstraint(Sketcher.Constraint("Tangent", 7, 2, 0, 1))
sketch6.addConstraint(Sketcher.Constraint("Tangent", 8, 2, 9, 1))
sketch6.addConstraint(Sketcher.Constraint("Coincident", 9, 2, 10, 1))
sketch6.addConstraint(Sketcher.Constraint("Coincident", 10, 2, 11, 1))
sketch6.addConstraint(Sketcher.Constraint("Tangent", 11, 2, 12, 2))
sketch6.addConstraint(Sketcher.Constraint("Coincident", 12, 1, 13, 1))
sketch6.addConstraint(Sketcher.Constraint("Coincident", 13, 2, 14, 1))
sketch6.addConstraint(Sketcher.Constraint("Coincident", 14, 2, 15, 1))
sketch6.addConstraint(Sketcher.Constraint("Coincident", 15, 2, 8, 1))
sketch6.addConstraint(Sketcher.Constraint("Coincident", 16, 2, 17, 1))
sketch6.addConstraint(Sketcher.Constraint("Coincident", 17, 2, 18, 1))
sketch6.addConstraint(Sketcher.Constraint("Coincident", 18, 2, 19, 1))
sketch6.addConstraint(Sketcher.Constraint("Coincident", 19, 2, 20, 2))
sketch6.addConstraint(Sketcher.Constraint("Coincident", 20, 1, 21, 1))
sketch6.addConstraint(Sketcher.Constraint("Coincident", 21, 2, 22, 1))
sketch6.addConstraint(Sketcher.Constraint("Coincident", 22, 2, 23, 1))
sketch6.addConstraint(Sketcher.Constraint("Tangent", 23, 2, 16, 1))
sketch6.addConstraint(Sketcher.Constraint("Coincident", 24, 2, 25, 1))
sketch6.addConstraint(Sketcher.Constraint("Coincident", 25, 2, 26, 1))
sketch6.addConstraint(Sketcher.Constraint("Coincident", 26, 2, 27, 1))
sketch6.addConstraint(Sketcher.Constraint("Coincident", 27, 2, 28, 2))
sketch6.addConstraint(Sketcher.Constraint("Tangent", 28, 1, 29, 1))
sketch6.addConstraint(Sketcher.Constraint("Coincident", 29, 2, 30, 1))
sketch6.addConstraint(Sketcher.Constraint("Coincident", 30, 2, 31, 1))
sketch6.addConstraint(Sketcher.Constraint("Tangent", 31, 2, 24, 1))
sketch6.addConstraint(Sketcher.Constraint("Tangent", 32, 2, 33, 1))
sketch6.addConstraint(Sketcher.Constraint("Coincident", 33, 2, 34, 1))
sketch6.addConstraint(Sketcher.Constraint("Coincident", 34, 2, 35, 1))
sketch6.addConstraint(Sketcher.Constraint("Tangent", 35, 2, 36, 2))
sketch6.addConstraint(Sketcher.Constraint("Coincident", 36, 1, 37, 1))
sketch6.addConstraint(Sketcher.Constraint("Coincident", 37, 2, 38, 1))
sketch6.addConstraint(Sketcher.Constraint("Coincident", 38, 2, 39, 1))
sketch6.addConstraint(Sketcher.Constraint("Coincident", 39, 2, 32, 1))
sketch6.addConstraint(Sketcher.Constraint("Tangent", 40, 2, 41, 1))
sketch6.addConstraint(Sketcher.Constraint("Coincident", 41, 2, 42, 1))
sketch6.addConstraint(Sketcher.Constraint("Coincident", 42, 2, 43, 1))
sketch6.addConstraint(Sketcher.Constraint("Tangent", 43, 2, 44, 2))
sketch6.addConstraint(Sketcher.Constraint("Coincident", 44, 1, 45, 1))
sketch6.addConstraint(Sketcher.Constraint("Coincident", 45, 2, 46, 1))
sketch6.addConstraint(Sketcher.Constraint("Coincident", 46, 2, 47, 1))
sketch6.addConstraint(Sketcher.Constraint("Coincident", 47, 2, 40, 1))
sketch6.addConstraint(Sketcher.Constraint("Horizontal", 5))
sketch6.addConstraint(Sketcher.Constraint("Vertical", 6))
sketch6.addConstraint(Sketcher.Constraint("Horizontal", 7))
sketch6.addConstraint(Sketcher.Constraint("Horizontal", 9))
sketch6.addConstraint(Sketcher.Constraint("Vertical", 10))
sketch6.addConstraint(Sketcher.Constraint("Horizontal", 11))
sketch6.addConstraint(Sketcher.Constraint("Horizontal", 25))
sketch6.addConstraint(Sketcher.Constraint("Vertical", 26))
sketch6.addConstraint(Sketcher.Constraint("Horizontal", 27))
sketch6.addConstraint(Sketcher.Constraint("Horizontal", 37))
sketch6.addConstraint(Sketcher.Constraint("Vertical", 38))
sketch6.addConstraint(Sketcher.Constraint("Horizontal", 39))
sketch6.addConstraint(Sketcher.Constraint("Coincident", 4, 3, 0, 3))
sketch6.addConstraint(Sketcher.Constraint("Coincident", 12, 3, 8, 3))
sketch6.addConstraint(Sketcher.Constraint("Coincident", 20, 3, 16, 3))
sketch6.addConstraint(Sketcher.Constraint("Coincident", 28, 3, 24, 3))
sketch6.addConstraint(Sketcher.Constraint("Coincident", 36, 3, 32, 3))
sketch6.addConstraint(Sketcher.Constraint("Coincident", 44, 3, 40, 3))
sketch6.addConstraint(Sketcher.Constraint("Equal", 0, 16))
sketch6.addConstraint(Sketcher.Constraint("Equal", 4, 20))
sketch6.addConstraint(Sketcher.Constraint("Equal", 16, 24))
sketch6.addConstraint(Sketcher.Constraint("Equal", 20, 28))
sketch6.addConstraint(Sketcher.Constraint("Equal", 8, 32))
sketch6.addConstraint(Sketcher.Constraint("Equal", 12, 36))
sketch6.addConstraint(Sketcher.Constraint("Equal", 32, 40))
sketch6.addConstraint(Sketcher.Constraint("Equal", 36, 44))
sketch6.addConstraint(Sketcher.Constraint("Symmetric", 8, 2, 24, 2, -1, 1))
sketch6.addConstraint(Sketcher.Constraint("Symmetric", 14, 2, 30, 2, -1, 1))
sketch6.addConstraint(Sketcher.Constraint("Symmetric", 15, 2, 31, 2, -1, 1))
sketch6.addConstraint(Sketcher.Constraint("Symmetric", 0, 2, 32, 2, -1, 1))
sketch6.addConstraint(Sketcher.Constraint("Symmetric", 1, 2, 33, 2, -1, 1))
sketch6.addConstraint(Sketcher.Constraint("Symmetric", 6, 2, 38, 2, -1, 1))
sketch6.addConstraint(Sketcher.Constraint("Symmetric", 16, 2, 40, 2, -1, 1))
sketch6.addConstraint(Sketcher.Constraint("Symmetric", 17, 2, 41, 2, -1, 1))
sketch6.addConstraint(Sketcher.Constraint("Symmetric", 22, 2, 46, 2, -1, 1))
sketch6.addConstraint(Sketcher.Constraint("Symmetric", 23, 2, 47, 2, -1, 1))
sketch6.addConstraint(Sketcher.Constraint("Perpendicular", 2, 3))
sketch6.addConstraint(Sketcher.Constraint("Perpendicular", 13, 14))
sketch6.addConstraint(Sketcher.Constraint("Perpendicular", 14, 15))
sketch6.addConstraint(Sketcher.Constraint("Parallel", 15, 17))
sketch6.addConstraint(Sketcher.Constraint("Perpendicular", 17, 18))
sketch6.addConstraint(Sketcher.Constraint("Perpendicular", 18, 19))
sketch6.addConstraint(Sketcher.Constraint("Parallel", 3, 21))
sketch6.addConstraint(Sketcher.Constraint("Perpendicular", 21, 22))
sketch6.addConstraint(Sketcher.Constraint("Parallel", 1, 23))
sketch6.addConstraint(Sketcher.Constraint("Parallel", 19, 29))
sketch6.addConstraint(Sketcher.Constraint("Perpendicular", 29, 30))
sketch6.addConstraint(Sketcher.Constraint("Perpendicular", 33, 34))
sketch6.addConstraint(Sketcher.Constraint("Perpendicular", 34, 35))
sketch6.addConstraint(Sketcher.Constraint("Perpendicular", 41, 42))
sketch6.addConstraint(Sketcher.Constraint("Perpendicular", 42, 43))
sketch6.addConstraint(Sketcher.Constraint("Parallel", 35, 45))
sketch6.addConstraint(Sketcher.Constraint("Perpendicular", 45, 46))
sketch6.addConstraint(Sketcher.Constraint("Horizontal", 7, 2, 8, 2))
sketch6.addConstraint(Sketcher.Constraint("Horizontal", 5, 2, 10, 2))
sketch6.addConstraint(Sketcher.Constraint("Horizontal", 27, 2, 36, 1))
sketch6.addConstraint(Sketcher.Constraint("Equal", 7, 9))
sketch6.addConstraint(Sketcher.Constraint("Equal", 11, 25))
sketch6.addConstraint(Sketcher.Constraint("Equal", 25, 39))
sketch6.addConstraint(Sketcher.Constraint("Equal", 1, 15))
sketch6.addConstraint(Sketcher.Constraint("Equal", 15, 17))
sketch6.addConstraint(Sketcher.Constraint("Equal", 14, 18))
sketch6.addConstraint(Sketcher.Constraint("Equal", 17, 23))
sketch6.addConstraint(Sketcher.Constraint("Equal", 13, 45))
sketch6.addConstraint(Sketcher.Constraint("Angle", 1, Q("-120 deg")))
sketch6.addConstraint(Sketcher.Constraint("Angle", 13, Q("-60 deg")))
sketch6.addConstraint(Sketcher.Constraint("DistanceY", 6, 1, 6, 2, Q("0.06 in")))
sketch6.addConstraint(Sketcher.Constraint("DistanceX", 5, 1, 5, 2, Q("0.125 in")))
sketch6.addConstraint(Sketcher.Constraint("DistanceY", 20, 1, 23, 2, Q("0.03 in")))
sketch6.addConstraint(Sketcher.Constraint("Distance", 1, Q("0.125 in")))
sketch6.addConstraint(Sketcher.Constraint("DistanceY", -1, 1, 4, 1, Q("4.645 in")))
sketch6.addConstraint(Sketcher.Constraint("DistanceY", -1, 1, 15, 2, Q("4.3275 in")))
sketch6.addConstraint(Sketcher.Constraint("DistanceY", -1, 1, 20, 1, Q("0.3475 in")))
sketch6.addConstraint(Sketcher.Constraint("Radius", 8, Q("19.384166 mm")))
sketch6.addConstraint(Sketcher.Constraint("DistanceX", 44, 1, 40, 2, Q("0.0497999 in")))
sketch6.addConstraint(Sketcher.Constraint("DistanceX", 27, 2, 27, 1, Q("3.18442 mm")))
sketch6.addConstraint(Sketcher.Constraint("DistanceX", 28, 1, -1, 1, Q("73.213499 mm")))
sketch6.addConstraint(Sketcher.Constraint("DistanceX", 16, 3, 32, 3, Q("173.656202 mm")))
sketch6.addConstraint(Sketcher.Constraint("Distance", 3, Q("3.174939 mm")))
sketch6.addConstraint(Sketcher.Constraint("DistanceX", 16, 3, -1, 1, Q("115.85047 mm")))
sketch6.setExpression("Constraints[114]", "Params.sketch6_height")
sketch6.setExpression("Constraints[115]", "Params.sketch6_width")
sketch6.setExpression("Constraints[117]", "Params.sketch6_length")
pocket4 = body.newObject("PartDesign::Pocket", "Pocket003")
pocket4.Profile = sketch6
pocket4.setExpression("Length", "Params.pocket4_length")

doc.recompute()
